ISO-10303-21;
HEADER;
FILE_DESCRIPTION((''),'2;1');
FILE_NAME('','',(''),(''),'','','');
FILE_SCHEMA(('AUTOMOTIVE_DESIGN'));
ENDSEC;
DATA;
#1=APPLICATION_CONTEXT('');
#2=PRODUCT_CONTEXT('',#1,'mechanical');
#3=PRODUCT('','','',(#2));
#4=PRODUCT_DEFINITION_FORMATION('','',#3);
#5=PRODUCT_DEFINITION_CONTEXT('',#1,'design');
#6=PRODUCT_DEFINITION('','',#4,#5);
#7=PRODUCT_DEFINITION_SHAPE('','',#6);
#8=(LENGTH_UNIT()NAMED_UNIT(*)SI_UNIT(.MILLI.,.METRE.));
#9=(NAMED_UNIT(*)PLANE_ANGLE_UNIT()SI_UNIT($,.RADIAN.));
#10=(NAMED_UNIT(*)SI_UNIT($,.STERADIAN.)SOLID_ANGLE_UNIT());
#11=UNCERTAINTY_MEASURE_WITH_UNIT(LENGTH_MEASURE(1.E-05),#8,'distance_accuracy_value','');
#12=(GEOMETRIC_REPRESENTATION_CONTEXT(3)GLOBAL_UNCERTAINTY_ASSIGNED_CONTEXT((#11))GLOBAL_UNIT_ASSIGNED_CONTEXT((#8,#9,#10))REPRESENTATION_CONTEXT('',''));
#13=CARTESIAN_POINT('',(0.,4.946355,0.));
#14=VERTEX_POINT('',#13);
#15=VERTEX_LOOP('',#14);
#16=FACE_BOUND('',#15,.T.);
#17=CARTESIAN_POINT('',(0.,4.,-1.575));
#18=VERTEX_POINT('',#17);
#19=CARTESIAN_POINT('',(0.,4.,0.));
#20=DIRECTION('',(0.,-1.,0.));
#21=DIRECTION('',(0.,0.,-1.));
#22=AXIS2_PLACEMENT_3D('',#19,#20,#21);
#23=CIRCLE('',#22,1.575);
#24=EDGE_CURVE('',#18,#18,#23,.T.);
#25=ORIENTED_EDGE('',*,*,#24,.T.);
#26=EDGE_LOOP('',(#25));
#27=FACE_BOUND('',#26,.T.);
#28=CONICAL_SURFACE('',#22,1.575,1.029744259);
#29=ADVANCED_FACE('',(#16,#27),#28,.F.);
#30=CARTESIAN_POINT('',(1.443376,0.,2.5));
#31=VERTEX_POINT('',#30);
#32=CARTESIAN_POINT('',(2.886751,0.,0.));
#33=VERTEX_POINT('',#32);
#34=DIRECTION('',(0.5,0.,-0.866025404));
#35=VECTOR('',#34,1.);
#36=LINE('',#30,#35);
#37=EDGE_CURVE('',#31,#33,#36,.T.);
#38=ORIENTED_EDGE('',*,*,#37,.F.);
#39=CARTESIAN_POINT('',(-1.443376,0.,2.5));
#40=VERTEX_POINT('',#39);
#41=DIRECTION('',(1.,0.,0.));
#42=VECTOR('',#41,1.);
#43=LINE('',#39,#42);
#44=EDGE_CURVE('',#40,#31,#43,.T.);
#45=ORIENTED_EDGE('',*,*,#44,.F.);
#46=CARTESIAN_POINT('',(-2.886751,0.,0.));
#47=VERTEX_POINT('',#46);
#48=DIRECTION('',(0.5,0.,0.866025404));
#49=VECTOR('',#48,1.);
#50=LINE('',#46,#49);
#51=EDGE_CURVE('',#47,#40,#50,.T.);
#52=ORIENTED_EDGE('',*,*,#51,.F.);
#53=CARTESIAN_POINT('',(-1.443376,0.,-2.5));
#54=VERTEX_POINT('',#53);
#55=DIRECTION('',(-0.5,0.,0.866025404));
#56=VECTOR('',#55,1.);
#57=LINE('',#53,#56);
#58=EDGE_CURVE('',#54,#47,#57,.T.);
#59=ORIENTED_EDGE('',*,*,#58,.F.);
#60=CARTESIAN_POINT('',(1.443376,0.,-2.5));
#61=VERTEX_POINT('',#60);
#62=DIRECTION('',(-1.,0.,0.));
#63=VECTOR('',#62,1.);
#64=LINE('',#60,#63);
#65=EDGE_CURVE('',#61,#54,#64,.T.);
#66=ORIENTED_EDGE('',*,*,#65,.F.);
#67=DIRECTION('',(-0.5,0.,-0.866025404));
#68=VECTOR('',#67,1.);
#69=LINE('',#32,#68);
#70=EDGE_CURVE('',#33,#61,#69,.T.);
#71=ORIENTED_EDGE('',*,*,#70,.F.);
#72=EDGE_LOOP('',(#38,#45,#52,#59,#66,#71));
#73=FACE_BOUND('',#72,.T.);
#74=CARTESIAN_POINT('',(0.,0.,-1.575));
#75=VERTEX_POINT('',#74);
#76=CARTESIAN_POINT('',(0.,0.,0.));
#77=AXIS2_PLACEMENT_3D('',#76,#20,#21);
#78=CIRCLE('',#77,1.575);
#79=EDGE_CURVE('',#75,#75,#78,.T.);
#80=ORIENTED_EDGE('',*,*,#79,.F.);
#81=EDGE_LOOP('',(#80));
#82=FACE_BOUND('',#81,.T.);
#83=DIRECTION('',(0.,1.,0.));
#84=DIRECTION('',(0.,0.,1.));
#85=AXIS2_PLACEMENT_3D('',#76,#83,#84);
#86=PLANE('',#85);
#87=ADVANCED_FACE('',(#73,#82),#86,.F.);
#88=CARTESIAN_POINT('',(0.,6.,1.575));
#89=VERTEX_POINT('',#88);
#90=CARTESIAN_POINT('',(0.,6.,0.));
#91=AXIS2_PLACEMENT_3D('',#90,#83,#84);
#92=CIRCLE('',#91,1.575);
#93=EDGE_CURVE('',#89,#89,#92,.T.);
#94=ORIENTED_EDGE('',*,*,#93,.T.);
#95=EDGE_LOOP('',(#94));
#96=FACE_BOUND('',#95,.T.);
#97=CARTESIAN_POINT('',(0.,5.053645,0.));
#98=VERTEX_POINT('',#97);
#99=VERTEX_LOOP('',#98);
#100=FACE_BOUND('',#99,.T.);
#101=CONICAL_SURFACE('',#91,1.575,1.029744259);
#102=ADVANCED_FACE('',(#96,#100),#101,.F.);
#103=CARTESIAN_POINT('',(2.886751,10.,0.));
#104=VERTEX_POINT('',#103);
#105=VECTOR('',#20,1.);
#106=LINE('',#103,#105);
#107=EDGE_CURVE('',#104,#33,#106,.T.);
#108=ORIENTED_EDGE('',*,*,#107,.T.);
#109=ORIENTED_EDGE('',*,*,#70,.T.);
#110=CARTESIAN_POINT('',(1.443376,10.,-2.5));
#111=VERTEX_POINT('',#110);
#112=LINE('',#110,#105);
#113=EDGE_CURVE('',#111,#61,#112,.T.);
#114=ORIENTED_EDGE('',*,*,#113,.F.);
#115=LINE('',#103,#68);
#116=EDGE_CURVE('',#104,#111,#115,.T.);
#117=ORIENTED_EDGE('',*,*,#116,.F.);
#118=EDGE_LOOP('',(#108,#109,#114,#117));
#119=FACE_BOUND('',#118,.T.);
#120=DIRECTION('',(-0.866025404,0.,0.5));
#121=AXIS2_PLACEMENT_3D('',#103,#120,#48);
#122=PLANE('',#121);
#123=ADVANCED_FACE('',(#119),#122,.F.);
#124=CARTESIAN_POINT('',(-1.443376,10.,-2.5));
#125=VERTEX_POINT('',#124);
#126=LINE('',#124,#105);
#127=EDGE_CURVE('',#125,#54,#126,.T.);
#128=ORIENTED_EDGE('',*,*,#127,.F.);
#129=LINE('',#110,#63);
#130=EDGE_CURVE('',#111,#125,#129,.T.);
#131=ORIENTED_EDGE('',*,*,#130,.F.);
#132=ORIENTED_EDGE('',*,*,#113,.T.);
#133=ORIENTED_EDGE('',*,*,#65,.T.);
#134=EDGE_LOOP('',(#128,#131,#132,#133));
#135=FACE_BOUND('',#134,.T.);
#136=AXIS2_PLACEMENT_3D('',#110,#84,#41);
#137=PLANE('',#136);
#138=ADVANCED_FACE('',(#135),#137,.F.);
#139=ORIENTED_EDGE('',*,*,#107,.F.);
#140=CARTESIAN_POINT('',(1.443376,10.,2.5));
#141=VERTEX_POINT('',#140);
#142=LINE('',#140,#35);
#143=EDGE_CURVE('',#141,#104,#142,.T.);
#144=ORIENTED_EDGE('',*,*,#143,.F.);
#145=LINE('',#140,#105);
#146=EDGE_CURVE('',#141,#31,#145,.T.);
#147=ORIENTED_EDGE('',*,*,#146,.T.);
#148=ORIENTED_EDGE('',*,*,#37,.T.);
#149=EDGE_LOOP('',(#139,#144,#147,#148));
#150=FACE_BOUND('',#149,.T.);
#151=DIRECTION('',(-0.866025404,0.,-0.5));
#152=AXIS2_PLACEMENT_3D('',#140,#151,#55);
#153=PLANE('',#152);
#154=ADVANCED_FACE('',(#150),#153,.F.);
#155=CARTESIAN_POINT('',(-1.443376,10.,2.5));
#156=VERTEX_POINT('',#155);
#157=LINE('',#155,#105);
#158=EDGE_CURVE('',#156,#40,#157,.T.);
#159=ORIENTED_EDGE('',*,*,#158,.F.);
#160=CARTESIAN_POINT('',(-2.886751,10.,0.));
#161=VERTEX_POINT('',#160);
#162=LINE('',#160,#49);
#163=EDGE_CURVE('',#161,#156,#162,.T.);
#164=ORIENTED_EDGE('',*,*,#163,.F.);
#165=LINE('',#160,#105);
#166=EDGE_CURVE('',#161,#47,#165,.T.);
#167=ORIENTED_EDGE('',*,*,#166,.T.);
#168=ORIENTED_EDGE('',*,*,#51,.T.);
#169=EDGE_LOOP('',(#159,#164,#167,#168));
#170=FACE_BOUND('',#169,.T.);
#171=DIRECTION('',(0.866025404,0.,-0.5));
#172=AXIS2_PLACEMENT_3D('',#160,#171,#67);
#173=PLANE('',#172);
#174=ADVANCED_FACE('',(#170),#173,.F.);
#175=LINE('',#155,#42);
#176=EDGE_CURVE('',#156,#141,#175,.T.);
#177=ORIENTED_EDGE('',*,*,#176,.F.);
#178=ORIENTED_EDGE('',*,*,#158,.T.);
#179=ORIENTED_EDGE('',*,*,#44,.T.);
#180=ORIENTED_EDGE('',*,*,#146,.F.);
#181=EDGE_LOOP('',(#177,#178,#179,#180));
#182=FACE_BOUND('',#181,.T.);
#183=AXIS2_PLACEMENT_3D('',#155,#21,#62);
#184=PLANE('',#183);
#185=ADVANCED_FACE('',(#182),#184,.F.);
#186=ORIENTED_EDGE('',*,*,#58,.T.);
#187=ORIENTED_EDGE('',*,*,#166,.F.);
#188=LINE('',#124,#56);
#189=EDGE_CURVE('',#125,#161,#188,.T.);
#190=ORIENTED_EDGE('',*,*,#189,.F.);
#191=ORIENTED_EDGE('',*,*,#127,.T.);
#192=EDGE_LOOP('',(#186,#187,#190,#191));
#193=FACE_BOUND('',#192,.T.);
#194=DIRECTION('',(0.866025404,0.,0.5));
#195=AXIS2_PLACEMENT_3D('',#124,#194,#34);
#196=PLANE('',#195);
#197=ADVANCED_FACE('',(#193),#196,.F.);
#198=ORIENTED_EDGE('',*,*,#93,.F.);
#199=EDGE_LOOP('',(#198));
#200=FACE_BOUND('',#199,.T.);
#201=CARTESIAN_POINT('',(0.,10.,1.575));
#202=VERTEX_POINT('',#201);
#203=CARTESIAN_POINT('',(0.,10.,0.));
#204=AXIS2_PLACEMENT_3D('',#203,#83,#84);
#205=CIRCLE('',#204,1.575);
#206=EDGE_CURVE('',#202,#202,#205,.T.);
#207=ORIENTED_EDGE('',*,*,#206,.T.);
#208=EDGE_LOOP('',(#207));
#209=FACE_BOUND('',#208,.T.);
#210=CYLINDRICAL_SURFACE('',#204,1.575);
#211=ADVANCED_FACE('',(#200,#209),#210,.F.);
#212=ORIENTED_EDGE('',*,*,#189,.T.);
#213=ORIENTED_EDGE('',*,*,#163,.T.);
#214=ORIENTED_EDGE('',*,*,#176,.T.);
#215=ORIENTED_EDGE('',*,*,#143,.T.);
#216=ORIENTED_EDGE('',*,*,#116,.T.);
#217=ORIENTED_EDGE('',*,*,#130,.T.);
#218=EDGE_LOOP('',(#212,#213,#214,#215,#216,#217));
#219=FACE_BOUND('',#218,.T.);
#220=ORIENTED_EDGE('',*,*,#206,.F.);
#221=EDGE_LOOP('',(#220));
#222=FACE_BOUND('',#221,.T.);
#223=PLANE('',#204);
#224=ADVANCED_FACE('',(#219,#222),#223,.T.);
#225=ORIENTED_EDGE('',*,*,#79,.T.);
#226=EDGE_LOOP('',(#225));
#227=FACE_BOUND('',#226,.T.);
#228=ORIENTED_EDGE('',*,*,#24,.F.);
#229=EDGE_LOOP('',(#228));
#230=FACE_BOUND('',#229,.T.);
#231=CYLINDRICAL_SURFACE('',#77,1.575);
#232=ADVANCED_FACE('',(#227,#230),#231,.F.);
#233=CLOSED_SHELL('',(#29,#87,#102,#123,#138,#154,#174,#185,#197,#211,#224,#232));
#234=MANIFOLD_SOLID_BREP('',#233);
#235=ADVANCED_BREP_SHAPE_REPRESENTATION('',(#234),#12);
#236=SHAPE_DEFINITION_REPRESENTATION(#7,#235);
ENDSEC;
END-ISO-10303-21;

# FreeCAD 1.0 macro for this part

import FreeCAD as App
import Part
import Sketcher

V = App.Vector
Q = App.Units.Quantity

doc = App.newDocument("Part")
body = doc.addObject("PartDesign::Body", "Body")

# Sketch on XZ plane
sketch1 = body.newObject("Sketcher::SketchObject", "Sketch")
sketch1.AttachmentSupport = (doc.getObject("XZ_Plane"), [""])
sketch1.MapMode = "FlatFace"
sketch1.addGeometry([
    Part.LineSegment(V(2.9, 0, 0), V(1.4, -2.5, 0)),  # 0
    Part.LineSegment(V(1.4, -2.5, 0), V(-1.4, -2.5, 0)),  # 1
    Part.LineSegment(V(-1.4, -2.5, 0), V(-2.9, 0, 0)),  # 2
    Part.LineSegment(V(-2.9, 0, 0), V(-1.4, 2.5, 0)),  # 3
    Part.LineSegment(V(-1.4, 2.5, 0), V(1.4, 2.5, 0)),  # 4
    Part.LineSegment(V(1.4, 2.5, 0), V(2.9, 0, 0)),  # 5
], False)
sketch1.addConstraint([
    Sketcher.Constraint("Coincident", 0, 2, 1, 1),
    Sketcher.Constraint("Coincident", 1, 2, 2, 1),
    Sketcher.Constraint("Coincident", 2, 2, 3, 1),
    Sketcher.Constraint("Coincident", 3, 2, 4, 1),
    Sketcher.Constraint("Coincident", 4, 2, 5, 1),
    Sketcher.Constraint("Coincident", 5, 2, 0, 1),
    Sketcher.Constraint("Horizontal", 1),
    Sketcher.Constraint("Horizontal", 4),
    Sketcher.Constraint("Symmetric", 0, 2, 3, 2, -1, 1),
    Sketcher.Constraint("Symmetric", 2, 2, 5, 2, -1, 1),
    Sketcher.Constraint("PointOnObject", 2, 2, -1),
    Sketcher.Constraint("Parallel", 2, 5),
    Sketcher.Constraint("Vertical", 1, 2, 3, 2),
    Sketcher.Constraint("Angle", 0, Q("-120 deg")),
    Sketcher.Constraint("DistanceY", 1, 2, 3, 2, Q("5 mm")),
    Sketcher.Constraint("DistanceX", 1, 2, 1, 1, Q("2.886751 mm")),
])
pad1 = body.newObject("PartDesign::Pad", "Pad")
pad1.Profile = sketch1
pad1.Length = 10
pad1.Reversed = True

# Sketch on XZ plane
sketch2 = body.newObject("Sketcher::SketchObject", "Sketch001")
sketch2.AttachmentSupport = (doc.getObject("XZ_Plane"), [""])
sketch2.MapMode = "FlatFace"
sketch2.AttachmentOffset = App.Placement(V(0, 0, -10), App.Rotation())
sketch2.addGeometry(Part.Circle(V(0, 0, 0), V(0, 0, 1), 1.6), False)
sketch2.addConstraint([
    Sketcher.Constraint("Coincident", 0, 3, -1, 1),
    Sketcher.Constraint("Diameter", 0, Q("3.15 mm")),
])
doc.recompute()
hole = body.newObject("PartDesign::Hole", "Hole")
hole.Profile = sketch2
hole.ThreadType = "None"
hole.Diameter = 3.15
hole.DepthType = "Dimension"
hole.Depth = 4
hole.DrillPoint = "Angled"
hole.DrillPointAngle = 118
hole.Reversed = True

# Sketch on XZ plane
sketch3 = body.newObject("Sketcher::SketchObject", "Sketch002")
sketch3.AttachmentSupport = (doc.getObject("XZ_Plane"), [""])
sketch3.MapMode = "FlatFace"
sketch3.addGeometry(Part.Circle(V(0, 0, 0), V(0, 0, 1), 1.6), False)
sketch3.addConstraint([
    Sketcher.Constraint("Coincident", 0, 3, -1, 1),
    Sketcher.Constraint("Diameter", 0, Q("3.15 mm")),
])
doc.recompute()
hole2 = body.newObject("PartDesign::Hole", "Hole001")
hole2.Profile = sketch3
hole2.ThreadType = "None"
hole2.Diameter = 3.15
hole2.DepthType = "Dimension"
hole2.Depth = 4
hole2.DrillPoint = "Angled"
hole2.DrillPointAngle = 118

doc.recompute()
